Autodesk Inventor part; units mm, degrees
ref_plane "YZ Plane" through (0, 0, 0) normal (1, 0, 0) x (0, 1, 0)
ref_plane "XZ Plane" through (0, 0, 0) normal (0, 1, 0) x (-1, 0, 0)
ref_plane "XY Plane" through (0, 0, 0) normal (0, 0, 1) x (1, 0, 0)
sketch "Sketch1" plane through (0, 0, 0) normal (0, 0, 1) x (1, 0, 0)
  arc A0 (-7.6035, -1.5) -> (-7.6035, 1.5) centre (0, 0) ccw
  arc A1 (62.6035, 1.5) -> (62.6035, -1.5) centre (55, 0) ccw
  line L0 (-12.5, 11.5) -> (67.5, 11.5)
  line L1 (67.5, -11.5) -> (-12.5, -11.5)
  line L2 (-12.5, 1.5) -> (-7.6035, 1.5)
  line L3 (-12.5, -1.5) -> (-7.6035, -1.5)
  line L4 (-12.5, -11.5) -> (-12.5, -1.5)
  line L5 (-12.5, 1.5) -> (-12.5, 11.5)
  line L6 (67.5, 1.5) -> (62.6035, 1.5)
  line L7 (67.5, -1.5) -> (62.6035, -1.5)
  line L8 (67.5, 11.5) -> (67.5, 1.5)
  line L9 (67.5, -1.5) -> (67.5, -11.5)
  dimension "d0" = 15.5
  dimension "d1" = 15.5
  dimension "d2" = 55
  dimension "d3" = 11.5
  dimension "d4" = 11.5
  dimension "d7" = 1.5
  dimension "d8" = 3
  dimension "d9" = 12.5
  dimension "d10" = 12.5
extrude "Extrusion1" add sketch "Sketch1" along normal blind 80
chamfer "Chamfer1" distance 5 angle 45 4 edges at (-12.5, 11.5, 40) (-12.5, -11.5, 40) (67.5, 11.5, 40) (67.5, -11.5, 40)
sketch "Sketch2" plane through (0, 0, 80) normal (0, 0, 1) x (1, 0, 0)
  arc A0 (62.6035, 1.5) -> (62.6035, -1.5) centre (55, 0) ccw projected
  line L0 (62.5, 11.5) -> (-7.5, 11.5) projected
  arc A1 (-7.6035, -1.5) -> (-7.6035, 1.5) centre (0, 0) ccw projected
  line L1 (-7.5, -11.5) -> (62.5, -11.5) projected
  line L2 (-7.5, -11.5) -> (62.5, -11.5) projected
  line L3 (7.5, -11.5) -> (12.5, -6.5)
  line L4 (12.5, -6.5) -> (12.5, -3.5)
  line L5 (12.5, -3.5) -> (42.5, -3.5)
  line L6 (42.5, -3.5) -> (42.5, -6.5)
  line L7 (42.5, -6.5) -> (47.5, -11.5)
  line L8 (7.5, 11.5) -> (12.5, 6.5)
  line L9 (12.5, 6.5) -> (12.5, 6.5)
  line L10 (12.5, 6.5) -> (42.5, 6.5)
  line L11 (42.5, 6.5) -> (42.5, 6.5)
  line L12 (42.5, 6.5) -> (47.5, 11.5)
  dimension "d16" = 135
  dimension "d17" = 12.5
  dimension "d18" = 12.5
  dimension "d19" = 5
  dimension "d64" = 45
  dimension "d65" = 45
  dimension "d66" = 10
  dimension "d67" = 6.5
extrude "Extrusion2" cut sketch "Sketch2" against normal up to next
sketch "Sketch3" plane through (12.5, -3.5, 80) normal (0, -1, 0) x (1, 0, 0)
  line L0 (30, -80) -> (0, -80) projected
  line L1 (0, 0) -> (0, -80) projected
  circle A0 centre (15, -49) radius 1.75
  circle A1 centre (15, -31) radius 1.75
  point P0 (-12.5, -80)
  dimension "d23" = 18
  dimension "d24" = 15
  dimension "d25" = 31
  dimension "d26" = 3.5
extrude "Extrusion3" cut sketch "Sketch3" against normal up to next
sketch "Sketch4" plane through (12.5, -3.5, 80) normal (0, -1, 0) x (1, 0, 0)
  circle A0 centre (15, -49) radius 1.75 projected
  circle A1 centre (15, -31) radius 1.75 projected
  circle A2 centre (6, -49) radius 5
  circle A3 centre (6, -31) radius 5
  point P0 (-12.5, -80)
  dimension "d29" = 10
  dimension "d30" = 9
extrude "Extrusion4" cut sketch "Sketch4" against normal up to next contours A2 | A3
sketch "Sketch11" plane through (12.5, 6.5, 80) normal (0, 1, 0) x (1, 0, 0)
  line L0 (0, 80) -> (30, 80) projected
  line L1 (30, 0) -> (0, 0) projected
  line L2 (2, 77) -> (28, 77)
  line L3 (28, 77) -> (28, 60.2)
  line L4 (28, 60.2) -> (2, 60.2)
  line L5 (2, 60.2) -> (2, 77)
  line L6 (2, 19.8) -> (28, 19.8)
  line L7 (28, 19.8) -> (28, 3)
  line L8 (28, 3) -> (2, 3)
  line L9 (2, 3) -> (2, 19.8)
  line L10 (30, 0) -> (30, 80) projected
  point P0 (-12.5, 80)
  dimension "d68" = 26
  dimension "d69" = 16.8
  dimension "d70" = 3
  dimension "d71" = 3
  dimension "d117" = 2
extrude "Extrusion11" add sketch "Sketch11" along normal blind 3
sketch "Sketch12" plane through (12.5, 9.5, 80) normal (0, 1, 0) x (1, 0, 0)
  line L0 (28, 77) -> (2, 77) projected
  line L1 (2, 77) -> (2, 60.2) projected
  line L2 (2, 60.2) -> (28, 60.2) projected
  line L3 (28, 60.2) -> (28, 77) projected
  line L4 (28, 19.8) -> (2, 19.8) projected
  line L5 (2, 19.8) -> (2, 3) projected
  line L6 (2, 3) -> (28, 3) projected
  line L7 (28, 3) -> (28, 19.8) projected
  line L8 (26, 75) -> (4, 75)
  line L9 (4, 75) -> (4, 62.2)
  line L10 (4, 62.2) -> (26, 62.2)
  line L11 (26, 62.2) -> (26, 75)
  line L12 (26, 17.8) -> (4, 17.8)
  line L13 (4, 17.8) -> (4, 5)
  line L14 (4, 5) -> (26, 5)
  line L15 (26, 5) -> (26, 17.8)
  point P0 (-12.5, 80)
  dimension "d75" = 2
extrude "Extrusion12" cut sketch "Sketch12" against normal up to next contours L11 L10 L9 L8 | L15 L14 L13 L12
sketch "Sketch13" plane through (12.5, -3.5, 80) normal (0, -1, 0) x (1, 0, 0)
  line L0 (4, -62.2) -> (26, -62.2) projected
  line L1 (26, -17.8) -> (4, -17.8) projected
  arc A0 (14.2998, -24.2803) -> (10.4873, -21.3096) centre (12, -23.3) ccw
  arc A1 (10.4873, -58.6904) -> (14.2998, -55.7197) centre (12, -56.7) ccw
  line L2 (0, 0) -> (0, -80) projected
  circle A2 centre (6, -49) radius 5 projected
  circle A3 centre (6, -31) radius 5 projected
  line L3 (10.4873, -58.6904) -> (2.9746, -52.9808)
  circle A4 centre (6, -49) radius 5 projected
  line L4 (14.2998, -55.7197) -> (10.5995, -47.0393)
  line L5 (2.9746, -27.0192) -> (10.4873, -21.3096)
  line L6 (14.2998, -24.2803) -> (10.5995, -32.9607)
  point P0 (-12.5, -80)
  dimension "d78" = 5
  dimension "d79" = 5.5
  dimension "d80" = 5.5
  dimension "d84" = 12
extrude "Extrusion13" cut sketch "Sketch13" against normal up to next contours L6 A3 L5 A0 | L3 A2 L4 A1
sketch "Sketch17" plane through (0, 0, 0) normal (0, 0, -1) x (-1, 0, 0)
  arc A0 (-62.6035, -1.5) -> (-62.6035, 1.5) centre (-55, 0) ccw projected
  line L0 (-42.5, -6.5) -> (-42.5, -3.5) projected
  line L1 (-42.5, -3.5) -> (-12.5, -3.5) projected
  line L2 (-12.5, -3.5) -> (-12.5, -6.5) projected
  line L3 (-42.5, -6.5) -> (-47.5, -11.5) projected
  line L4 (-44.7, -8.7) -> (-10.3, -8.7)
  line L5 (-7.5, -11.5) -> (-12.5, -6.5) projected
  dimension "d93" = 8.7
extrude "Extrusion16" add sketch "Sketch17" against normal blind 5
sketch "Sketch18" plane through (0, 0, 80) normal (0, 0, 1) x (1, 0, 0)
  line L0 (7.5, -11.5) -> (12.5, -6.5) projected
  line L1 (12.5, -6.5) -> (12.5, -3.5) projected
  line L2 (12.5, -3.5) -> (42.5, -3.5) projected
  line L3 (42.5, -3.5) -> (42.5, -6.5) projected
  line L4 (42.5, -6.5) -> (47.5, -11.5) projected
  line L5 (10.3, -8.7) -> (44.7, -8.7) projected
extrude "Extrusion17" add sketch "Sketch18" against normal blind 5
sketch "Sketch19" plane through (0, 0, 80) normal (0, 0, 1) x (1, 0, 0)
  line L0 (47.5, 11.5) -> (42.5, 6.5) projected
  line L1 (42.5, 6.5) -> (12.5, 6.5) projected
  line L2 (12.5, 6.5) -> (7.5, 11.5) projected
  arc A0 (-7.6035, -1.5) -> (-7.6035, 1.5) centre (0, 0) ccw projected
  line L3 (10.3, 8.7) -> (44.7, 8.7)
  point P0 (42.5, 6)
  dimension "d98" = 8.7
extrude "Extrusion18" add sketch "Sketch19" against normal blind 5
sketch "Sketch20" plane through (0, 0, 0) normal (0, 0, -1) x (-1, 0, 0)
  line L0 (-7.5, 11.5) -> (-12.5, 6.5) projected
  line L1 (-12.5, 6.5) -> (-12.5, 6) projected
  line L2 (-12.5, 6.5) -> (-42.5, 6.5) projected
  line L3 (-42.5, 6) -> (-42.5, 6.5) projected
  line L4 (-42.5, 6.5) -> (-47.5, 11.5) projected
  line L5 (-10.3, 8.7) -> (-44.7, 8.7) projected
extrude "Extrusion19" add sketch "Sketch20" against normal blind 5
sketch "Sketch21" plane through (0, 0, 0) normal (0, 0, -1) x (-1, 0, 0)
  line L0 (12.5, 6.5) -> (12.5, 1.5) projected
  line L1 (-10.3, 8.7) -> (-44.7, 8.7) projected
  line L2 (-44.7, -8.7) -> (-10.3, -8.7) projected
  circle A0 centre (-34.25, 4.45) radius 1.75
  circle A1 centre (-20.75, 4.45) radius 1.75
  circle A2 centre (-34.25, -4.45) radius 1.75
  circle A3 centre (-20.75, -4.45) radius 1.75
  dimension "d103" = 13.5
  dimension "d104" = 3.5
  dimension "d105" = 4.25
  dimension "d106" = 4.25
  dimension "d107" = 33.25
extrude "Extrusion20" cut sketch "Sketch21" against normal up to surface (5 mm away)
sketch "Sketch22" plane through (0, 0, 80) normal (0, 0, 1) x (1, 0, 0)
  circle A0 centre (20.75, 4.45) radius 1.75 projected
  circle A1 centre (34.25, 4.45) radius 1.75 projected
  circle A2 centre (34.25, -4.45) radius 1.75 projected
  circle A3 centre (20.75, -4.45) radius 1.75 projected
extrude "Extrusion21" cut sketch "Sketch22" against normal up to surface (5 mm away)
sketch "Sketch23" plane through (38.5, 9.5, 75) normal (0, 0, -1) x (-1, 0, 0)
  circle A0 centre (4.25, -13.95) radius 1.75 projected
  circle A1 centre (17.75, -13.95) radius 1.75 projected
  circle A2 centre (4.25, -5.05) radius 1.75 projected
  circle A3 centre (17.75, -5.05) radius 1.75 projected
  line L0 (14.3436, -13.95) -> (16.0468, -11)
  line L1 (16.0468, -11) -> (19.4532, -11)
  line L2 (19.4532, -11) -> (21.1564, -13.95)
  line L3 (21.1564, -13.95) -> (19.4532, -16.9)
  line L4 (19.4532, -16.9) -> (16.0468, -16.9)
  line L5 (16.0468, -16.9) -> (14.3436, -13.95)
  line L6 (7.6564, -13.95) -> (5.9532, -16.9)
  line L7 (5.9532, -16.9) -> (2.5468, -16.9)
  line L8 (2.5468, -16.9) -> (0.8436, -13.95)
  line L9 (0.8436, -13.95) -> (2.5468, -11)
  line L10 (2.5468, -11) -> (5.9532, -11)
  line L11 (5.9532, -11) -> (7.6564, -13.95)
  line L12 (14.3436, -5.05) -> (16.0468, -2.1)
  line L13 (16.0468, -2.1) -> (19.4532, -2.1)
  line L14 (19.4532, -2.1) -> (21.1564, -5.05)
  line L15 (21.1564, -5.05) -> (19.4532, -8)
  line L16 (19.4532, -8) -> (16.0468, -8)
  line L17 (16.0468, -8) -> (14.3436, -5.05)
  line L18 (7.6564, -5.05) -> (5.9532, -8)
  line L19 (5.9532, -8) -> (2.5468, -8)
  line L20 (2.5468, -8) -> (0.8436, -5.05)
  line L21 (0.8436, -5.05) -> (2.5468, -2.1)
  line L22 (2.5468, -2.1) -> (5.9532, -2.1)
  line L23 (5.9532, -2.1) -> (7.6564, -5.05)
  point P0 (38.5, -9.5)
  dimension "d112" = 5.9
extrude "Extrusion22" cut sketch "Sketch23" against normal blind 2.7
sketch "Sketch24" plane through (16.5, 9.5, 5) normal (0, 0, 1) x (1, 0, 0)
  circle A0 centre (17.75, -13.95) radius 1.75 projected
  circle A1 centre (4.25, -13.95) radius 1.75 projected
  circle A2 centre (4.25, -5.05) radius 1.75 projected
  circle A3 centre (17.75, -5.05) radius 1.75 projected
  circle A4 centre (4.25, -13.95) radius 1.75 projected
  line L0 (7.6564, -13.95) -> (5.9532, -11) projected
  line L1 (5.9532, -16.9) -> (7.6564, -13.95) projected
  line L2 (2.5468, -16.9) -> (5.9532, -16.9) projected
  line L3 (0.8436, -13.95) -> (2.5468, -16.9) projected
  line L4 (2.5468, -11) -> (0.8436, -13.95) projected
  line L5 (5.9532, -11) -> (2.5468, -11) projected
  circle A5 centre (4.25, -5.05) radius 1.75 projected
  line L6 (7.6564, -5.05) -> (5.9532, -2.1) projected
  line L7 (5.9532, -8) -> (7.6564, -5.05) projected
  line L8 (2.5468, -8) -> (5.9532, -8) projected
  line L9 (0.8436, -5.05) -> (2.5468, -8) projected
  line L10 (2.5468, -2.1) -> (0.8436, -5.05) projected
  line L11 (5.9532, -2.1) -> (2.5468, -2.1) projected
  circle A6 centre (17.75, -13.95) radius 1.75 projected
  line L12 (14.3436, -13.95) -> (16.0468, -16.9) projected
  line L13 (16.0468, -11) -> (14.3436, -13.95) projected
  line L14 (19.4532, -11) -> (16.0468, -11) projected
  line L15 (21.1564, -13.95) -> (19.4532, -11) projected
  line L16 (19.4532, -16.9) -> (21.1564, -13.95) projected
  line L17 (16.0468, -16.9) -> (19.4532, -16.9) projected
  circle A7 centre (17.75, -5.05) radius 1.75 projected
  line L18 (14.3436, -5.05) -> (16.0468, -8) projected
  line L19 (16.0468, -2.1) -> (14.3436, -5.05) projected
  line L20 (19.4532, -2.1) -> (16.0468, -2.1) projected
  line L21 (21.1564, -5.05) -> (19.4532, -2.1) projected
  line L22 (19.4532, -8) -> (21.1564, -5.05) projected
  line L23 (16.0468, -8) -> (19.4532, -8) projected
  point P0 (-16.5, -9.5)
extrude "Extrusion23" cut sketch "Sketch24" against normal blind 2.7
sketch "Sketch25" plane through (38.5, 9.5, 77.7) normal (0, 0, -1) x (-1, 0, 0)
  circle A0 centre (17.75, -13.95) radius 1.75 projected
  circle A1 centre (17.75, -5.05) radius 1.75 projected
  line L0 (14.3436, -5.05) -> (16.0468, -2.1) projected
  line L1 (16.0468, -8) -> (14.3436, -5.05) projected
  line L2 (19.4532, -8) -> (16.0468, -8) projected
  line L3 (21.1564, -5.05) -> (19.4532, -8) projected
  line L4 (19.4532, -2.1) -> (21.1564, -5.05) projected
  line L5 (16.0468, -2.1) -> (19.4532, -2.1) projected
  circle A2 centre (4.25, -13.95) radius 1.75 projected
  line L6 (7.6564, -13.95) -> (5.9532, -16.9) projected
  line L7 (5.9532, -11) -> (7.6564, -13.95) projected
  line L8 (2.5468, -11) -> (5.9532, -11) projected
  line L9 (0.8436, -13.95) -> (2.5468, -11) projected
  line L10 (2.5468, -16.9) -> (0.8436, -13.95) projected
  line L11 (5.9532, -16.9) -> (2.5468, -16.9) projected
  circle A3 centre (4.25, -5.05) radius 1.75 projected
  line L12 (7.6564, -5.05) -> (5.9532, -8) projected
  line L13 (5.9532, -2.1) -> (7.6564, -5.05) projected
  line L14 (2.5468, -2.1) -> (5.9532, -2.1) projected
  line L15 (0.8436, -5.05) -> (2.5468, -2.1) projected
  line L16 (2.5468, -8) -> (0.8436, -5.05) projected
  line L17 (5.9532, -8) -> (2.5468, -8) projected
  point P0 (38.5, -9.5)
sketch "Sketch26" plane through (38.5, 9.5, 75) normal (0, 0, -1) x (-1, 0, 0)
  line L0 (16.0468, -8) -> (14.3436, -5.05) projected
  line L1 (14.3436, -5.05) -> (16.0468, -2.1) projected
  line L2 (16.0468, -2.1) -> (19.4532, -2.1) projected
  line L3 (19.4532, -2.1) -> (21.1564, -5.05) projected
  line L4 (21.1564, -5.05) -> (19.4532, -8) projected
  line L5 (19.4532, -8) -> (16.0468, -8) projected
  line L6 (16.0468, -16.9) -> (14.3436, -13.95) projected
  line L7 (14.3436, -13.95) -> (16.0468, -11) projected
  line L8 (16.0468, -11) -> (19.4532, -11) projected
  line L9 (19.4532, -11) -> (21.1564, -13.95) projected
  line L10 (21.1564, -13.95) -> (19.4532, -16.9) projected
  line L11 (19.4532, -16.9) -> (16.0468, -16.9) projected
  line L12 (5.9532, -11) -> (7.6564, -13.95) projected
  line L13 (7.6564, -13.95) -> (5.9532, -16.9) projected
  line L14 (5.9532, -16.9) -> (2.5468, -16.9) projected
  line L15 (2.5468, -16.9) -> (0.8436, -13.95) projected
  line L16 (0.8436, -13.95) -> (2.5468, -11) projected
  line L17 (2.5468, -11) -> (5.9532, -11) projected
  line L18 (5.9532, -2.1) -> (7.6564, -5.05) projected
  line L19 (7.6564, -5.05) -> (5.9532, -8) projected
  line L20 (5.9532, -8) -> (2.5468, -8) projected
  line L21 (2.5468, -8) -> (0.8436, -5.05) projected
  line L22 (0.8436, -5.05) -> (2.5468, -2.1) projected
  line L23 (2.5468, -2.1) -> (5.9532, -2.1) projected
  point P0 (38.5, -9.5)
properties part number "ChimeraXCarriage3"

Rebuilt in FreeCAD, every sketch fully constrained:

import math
import FreeCAD as App
import Part
import Sketcher
Q = App.Units.Quantity


def edges_at(feature, points):
    """Names of the edges that pass closest to the given points."""
    edges = feature.Shape.Edges
    near = lambda p: min(range(len(edges)), key=lambda i: edges[i].distToShape(Part.Vertex(*p))[0])
    return sorted({f"Edge{near(p) + 1}" for p in points})

doc = App.newDocument("Part")
params = doc.addObject("Spreadsheet::Sheet", "Params")
for row, (alias, value) in enumerate([
    ("sketch1_radius", "7.75 mm"),
    ("pad1_length", "80 mm"),
    ("chamfer_size", "5 mm"),
    ("sketch2_width", "40 mm"),
    ("sketch3_diameter", "3.5 mm"),
    ("sketch4_diameter", "10 mm"),
    ("sketch5_width", "26 mm"),
    ("sketch5_height", "16.8 mm"),
    ("pad2_length", "3 mm"),
    ("sketch6_width", "22 mm"),
    ("sketch6_height", "12.8 mm"),
    ("pocket4_length", "13 mm"),
    ("sketch7_radius", "5 mm"),
    ("sketch7_radius2", "2.5 mm"),
    ("sketch8_width", "30 mm"),
    ("sketch8_height", "3 mm"),
    ("sketch8_width2", "34.4 mm"),
    ("pad3_length", "5 mm"),
    ("sketch9_width", "30 mm"),
    ("sketch9_height", "3 mm"),
    ("sketch9_width2", "34.4 mm"),
    ("pad4_length", "5 mm"),
    ("sketch10_width", "30 mm"),
    ("sketch10_width2", "34.4 mm"),
    ("pad5_length", "5 mm"),
    ("sketch11_width", "30 mm"),
    ("sketch11_width2", "34.4 mm"),
    ("pad6_length", "5 mm"),
    ("sketch12_diameter", "3.5 mm"),
    ("pocket6_length", "5 mm"),
    ("sketch13_diameter", "3.5 mm"),
    ("pocket7_length", "5 mm"),
    ("sketch14_diameter", "3.5 mm"),
    ("pocket8_length", "2.7 mm"),
    ("sketch15_diameter", "3.5 mm"),
    ("pocket9_length", "2.7 mm"),
], start=1):
    params.set(f"A{row}", alias)
    params.set(f"B{row}", "=" + value)
    params.setAlias(f"B{row}", alias)

body = doc.addObject("PartDesign::Body", "Body")

# Sketch on XY plane
sketch1 = doc.addObject("Sketcher::SketchObject", "Sketch")
body.addObject(sketch1)
sketch1.AttachmentSupport = (doc.XY_Plane, [""])
sketch1.MapMode = "FlatFace"
sketch1.addGeometry([
    Part.ArcOfCircle(Part.Circle(App.Vector(0, 0, 0), App.Vector(0, 0, 1), 7.8), math.radians(-169), math.radians(169)),  # 0
    Part.LineSegment(App.Vector(-7.6, -1.5, 0), App.Vector(-12.5, -1.5, 0)),  # 1
    Part.LineSegment(App.Vector(-12.5, -1.5, 0), App.Vector(-12.5, -11.5, 0)),  # 2
    Part.LineSegment(App.Vector(-12.5, -11.5, 0), App.Vector(67.5, -11.5, 0)),  # 3
    Part.LineSegment(App.Vector(67.5, -11.5, 0), App.Vector(67.5, -1.5, 0)),  # 4
    Part.LineSegment(App.Vector(67.5, -1.5, 0), App.Vector(62.6, -1.5, 0)),  # 5
    Part.ArcOfCircle(Part.Circle(App.Vector(55, 0, 0), App.Vector(0, 0, 1), 7.8), math.radians(11), math.radians(349)),  # 6
    Part.LineSegment(App.Vector(62.6, 1.5, 0), App.Vector(67.5, 1.5, 0)),  # 7
    Part.LineSegment(App.Vector(67.5, 1.5, 0), App.Vector(67.5, 11.5, 0)),  # 8
    Part.LineSegment(App.Vector(67.5, 11.5, 0), App.Vector(-12.5, 11.5, 0)),  # 9
    Part.LineSegment(App.Vector(-12.5, 11.5, 0), App.Vector(-12.5, 1.5, 0)),  # 10
    Part.LineSegment(App.Vector(-12.5, 1.5, 0), App.Vector(-7.6, 1.5, 0)),  # 11
], False)
sketch1.addConstraint([
    Sketcher.Constraint("Coincident", 0, 1, 1, 1),
    Sketcher.Constraint("Coincident", 1, 2, 2, 1),
    Sketcher.Constraint("Coincident", 2, 2, 3, 1),
    Sketcher.Constraint("Coincident", 3, 2, 4, 1),
    Sketcher.Constraint("Coincident", 4, 2, 5, 1),
    Sketcher.Constraint("Coincident", 5, 2, 6, 2),
    Sketcher.Constraint("Coincident", 6, 1, 7, 1),
    Sketcher.Constraint("Coincident", 7, 2, 8, 1),
    Sketcher.Constraint("Coincident", 8, 2, 9, 1),
    Sketcher.Constraint("Coincident", 9, 2, 10, 1),
    Sketcher.Constraint("Coincident", 10, 2, 11, 1),
    Sketcher.Constraint("Coincident", 11, 2, 0, 2),
    Sketcher.Constraint("Horizontal", 1),
    Sketcher.Constraint("Vertical", 2),
    Sketcher.Constraint("Horizontal", 3),
    Sketcher.Constraint("Vertical", 4),
    Sketcher.Constraint("Horizontal", 5),
    Sketcher.Constraint("Horizontal", 7),
    Sketcher.Constraint("Vertical", 8),
    Sketcher.Constraint("Horizontal", 9),
    Sketcher.Constraint("Vertical", 10),
    Sketcher.Constraint("Horizontal", 11),
    Sketcher.Constraint("Coincident", 0, 3, -1, 1),
    Sketcher.Constraint("Equal", 0, 6),
    Sketcher.Constraint("Symmetric", 5, 2, 6, 1, -1),
    Sketcher.Constraint("Symmetric", 3, 2, 8, 2, -1),
    Sketcher.Constraint("Symmetric", 1, 2, 10, 2, -1),
    Sketcher.Constraint("Horizontal", 1, 2, 4, 2),
    Sketcher.Constraint("Equal", 1, 5),
    Sketcher.Constraint("Radius", 0, Q("7.75 mm")),
    Sketcher.Constraint("DistanceX", -1, 1, 6, 3, Q("55 mm")),
    Sketcher.Constraint("DistanceY", 5, 2, 6, 1, Q("3 mm")),
    Sketcher.Constraint("DistanceX", 1, 2, -1, 1, Q("12.5 mm")),
    Sketcher.Constraint("DistanceY", 2, 2, -1, 1, Q("11.5 mm")),
])
sketch1.setExpression("Constraints[29]", "Params.sketch1_radius")
pad1 = doc.addObject("PartDesign::Pad", "Pad")
body.addObject(pad1)
pad1.Profile = sketch1
pad1.setExpression("Length", "Params.pad1_length")
doc.recompute()

chamfer = doc.addObject("PartDesign::Chamfer", "Chamfer")
body.addObject(chamfer)
chamfer.Base = (pad1, edges_at(pad1, [
    (-12.5, 11.5, 40),
    (-12.5, -11.5, 40),
    (67.5, 11.5, 40),
    (67.5, -11.5, 40),
]))
chamfer.setExpression("Size", "Params.chamfer_size")

# Sketch on XY plane
sketch2 = doc.addObject("Sketcher::SketchObject", "Sketch001")
body.addObject(sketch2)
sketch2.AttachmentSupport = (doc.XY_Plane, [""])
sketch2.MapMode = "FlatFace"
sketch2.AttachmentOffset = App.Placement(App.Vector(0, 0, 80), App.Rotation())
sketch2.addGeometry([
    Part.LineSegment(App.Vector(42.5, 6.5, 0), App.Vector(47.5, 11.5, 0)),  # 0
    Part.LineSegment(App.Vector(47.5, 11.5, 0), App.Vector(7.5, 11.5, 0)),  # 1
    Part.LineSegment(App.Vector(7.5, 11.5, 0), App.Vector(12.5, 6.5, 0)),  # 2
    Part.LineSegment(App.Vector(12.5, 6.5, 0), App.Vector(42.5, 6.5, 0)),  # 3
    Part.LineSegment(App.Vector(12.5, -6.5, 0), App.Vector(7.5, -11.5, 0)),  # 4
    Part.LineSegment(App.Vector(7.5, -11.5, 0), App.Vector(47.5, -11.5, 0)),  # 5
    Part.LineSegment(App.Vector(47.5, -11.5, 0), App.Vector(42.5, -6.5, 0)),  # 6
    Part.LineSegment(App.Vector(42.5, -6.5, 0), App.Vector(42.5, -3.5, 0)),  # 7
    Part.LineSegment(App.Vector(42.5, -3.5, 0), App.Vector(12.5, -3.5, 0)),  # 8
    Part.LineSegment(App.Vector(12.5, -3.5, 0), App.Vector(12.5, -6.5, 0)),  # 9
], False)
sketch2.addConstraint([
    Sketcher.Constraint("Coincident", 0, 2, 1, 1),
    Sketcher.Constraint("Coincident", 1, 2, 2, 1),
    Sketcher.Constraint("Coincident", 2, 2, 3, 1),
    Sketcher.Constraint("Coincident", 3, 2, 0, 1),
    Sketcher.Constraint("Coincident", 4, 2, 5, 1),
    Sketcher.Constraint("Coincident", 5, 2, 6, 1),
    Sketcher.Constraint("Coincident", 6, 2, 7, 1),
    Sketcher.Constraint("Coincident", 7, 2, 8, 1),
    Sketcher.Constraint("Coincident", 8, 2, 9, 1),
    Sketcher.Constraint("Coincident", 9, 2, 4, 1),
    Sketcher.Constraint("Horizontal", 1),
    Sketcher.Constraint("Horizontal", 3),
    Sketcher.Constraint("Horizontal", 5),
    Sketcher.Constraint("Vertical", 7),
    Sketcher.Constraint("Horizontal", 8),
    Sketcher.Constraint("Vertical", 9),
    Sketcher.Constraint("Symmetric", 1, 2, 4, 2, -1),
    Sketcher.Constraint("Symmetric", 3, 2, 6, 2, -1),
    Sketcher.Constraint("Symmetric", 2, 2, 9, 2, -1),
    Sketcher.Constraint("Perpendicular", 0, 2),
    Sketcher.Constraint("Perpendicular", 2, 4),
    Sketcher.Constraint("Perpendicular", 4, 6),
    Sketcher.Constraint("DistanceX", 1, 2, 2, 2, Q("5 mm")),
    Sketcher.Constraint("DistanceY", 7, 2, 3, 2, Q("10 mm")),
    Sketcher.Constraint("DistanceX", -1, 1, 2, 2, Q("12.5 mm")),
    Sketcher.Constraint("DistanceY", -1, 1, 2, 2, Q("6.5 mm")),
    Sketcher.Constraint("DistanceX", 1, 2, 1, 1, Q("40 mm")),
])
sketch2.setExpression("Constraints[26]", "Params.sketch2_width")
pocket1 = doc.addObject("PartDesign::Pocket", "Pocket")
body.addObject(pocket1)
pocket1.Profile = sketch2
pocket1.Type = "UpToFirst"

# Sketch on XZ plane
sketch3 = doc.addObject("Sketcher::SketchObject", "Sketch002")
body.addObject(sketch3)
sketch3.AttachmentSupport = (doc.XZ_Plane, [""])
sketch3.MapMode = "FlatFace"
sketch3.AttachmentOffset = App.Placement(App.Vector(0, 0, 3.5), App.Rotation())
sketch3.addGeometry([
    Part.Circle(App.Vector(27.5, 31, 0), App.Vector(0, 0, 1), 1.8),
    Part.Circle(App.Vector(27.5, 49, 0), App.Vector(0, 0, 1), 1.8),
], False)
sketch3.addConstraint([
    Sketcher.Constraint("Equal", 0, 1),
    Sketcher.Constraint("Vertical", 0, 3, 1, 3),
    Sketcher.Constraint("Diameter", 0, Q("3.5 mm")),
    Sketcher.Constraint("DistanceY", -1, 1, 0, 3, Q("31 mm")),
    Sketcher.Constraint("DistanceY", 0, 3, 1, 3, Q("18 mm")),
    Sketcher.Constraint("DistanceX", -1, 1, 0, 3, Q("27.5 mm")),
])
sketch3.setExpression("Constraints[2]", "Params.sketch3_diameter")
pocket2 = doc.addObject("PartDesign::Pocket", "Pocket001")
body.addObject(pocket2)
pocket2.Profile = sketch3
pocket2.Type = "UpToFirst"

# Sketch on XZ plane
sketch4 = doc.addObject("Sketcher::SketchObject", "Sketch003")
body.addObject(sketch4)
sketch4.AttachmentSupport = (doc.XZ_Plane, [""])
sketch4.MapMode = "FlatFace"
sketch4.AttachmentOffset = App.Placement(App.Vector(0, 0, 3.5), App.Rotation())
sketch4.addGeometry([
    Part.Circle(App.Vector(18, 31, 0), App.Vector(0, 0, 1), 5),
    Part.Circle(App.Vector(18, 49, 0), App.Vector(0, 0, 1), 5),
], False)
sketch4.addConstraint([
    Sketcher.Constraint("Equal", 0, 1),
    Sketcher.Constraint("Vertical", 0, 3, 1, 3),
    Sketcher.Constraint("Diameter", 0, Q("10 mm")),
    Sketcher.Constraint("DistanceY", -1, 1, 0, 3, Q("31 mm")),
    Sketcher.Constraint("DistanceY", -1, 1, 1, 3, Q("49 mm")),
    Sketcher.Constraint("DistanceX", -1, 1, 0, 3, Q("18.5 mm")),
])
sketch4.setExpression("Constraints[2]", "Params.sketch4_diameter")
pocket3 = doc.addObject("PartDesign::Pocket", "Pocket002")
body.addObject(pocket3)
pocket3.Profile = sketch4
pocket3.Type = "UpToFirst"

# Sketch on XZ plane
sketch5 = doc.addObject("Sketcher::SketchObject", "Sketch004")
body.addObject(sketch5)
sketch5.AttachmentSupport = (doc.XZ_Plane, [""])
sketch5.MapMode = "FlatFace"
sketch5.AttachmentOffset = App.Placement(App.Vector(0, 0, -6.5), App.Rotation())
sketch5.addGeometry([
    Part.LineSegment(App.Vector(40, 3, 0), App.Vector(14, 3, 0)),  # 0
    Part.LineSegment(App.Vector(14, 3, 0), App.Vector(14, 20, 0)),  # 1
    Part.LineSegment(App.Vector(14, 20, 0), App.Vector(40, 20, 0)),  # 2
    Part.LineSegment(App.Vector(40, 20, 0), App.Vector(40, 3, 0)),  # 3
    Part.LineSegment(App.Vector(40, 60, 0), App.Vector(14, 60, 0)),  # 4
    Part.LineSegment(App.Vector(14, 60, 0), App.Vector(14, 77, 0)),  # 5
    Part.LineSegment(App.Vector(14, 77, 0), App.Vector(40, 77, 0)),  # 6
    Part.LineSegment(App.Vector(40, 77, 0), App.Vector(40, 60, 0)),  # 7
], False)
sketch5.addConstraint([
    Sketcher.Constraint("Coincident", 0, 2, 1, 1),
    Sketcher.Constraint("Coincident", 1, 2, 2, 1),
    Sketcher.Constraint("Coincident", 2, 2, 3, 1),
    Sketcher.Constraint("Coincident", 3, 2, 0, 1),
    Sketcher.Constraint("Coincident", 4, 2, 5, 1),
    Sketcher.Constraint("Coincident", 5, 2, 6, 1),
    Sketcher.Constraint("Coincident", 6, 2, 7, 1),
    Sketcher.Constraint("Coincident", 7, 2, 4, 1),
    Sketcher.Constraint("Horizontal", 0),
    Sketcher.Constraint("Vertical", 1),
    Sketcher.Constraint("Horizontal", 2),
    Sketcher.Constraint("Vertical", 3),
    Sketcher.Constraint("Horizontal", 4),
    Sketcher.Constraint("Vertical", 5),
    Sketcher.Constraint("Horizontal", 6),
    Sketcher.Constraint("Vertical", 7),
    Sketcher.Constraint("Vertical", 1, 2, 4, 2),
    Sketcher.Constraint("Vertical", 3, 2, 6, 2),
    Sketcher.Constraint("Equal", 3, 5),
    Sketcher.Constraint("DistanceX", 0, 2, 0, 1, Q("26 mm")),
    Sketcher.Constraint("DistanceY", 1, 1, 1, 2, Q("16.8 mm")),
    Sketcher.Constraint("DistanceY", -1, 1, 0, 2, Q("3 mm")),
    Sketcher.Constraint("DistanceY", -1, 1, 5, 2, Q("77 mm")),
    Sketcher.Constraint("DistanceX", -1, 1, 0, 2, Q("14.5 mm")),
])
sketch5.setExpression("Constraints[19]", "Params.sketch5_width")
sketch5.setExpression("Constraints[20]", "Params.sketch5_height")
pad2 = doc.addObject("PartDesign::Pad", "Pad001")
body.addObject(pad2)
pad2.Profile = sketch5
pad2.setExpression("Length", "Params.pad2_length")
pad2.Reversed = True

# Sketch on XZ plane
sketch6 = doc.addObject("Sketcher::SketchObject", "Sketch005")
body.addObject(sketch6)
sketch6.AttachmentSupport = (doc.XZ_Plane, [""])
sketch6.MapMode = "FlatFace"
sketch6.AttachmentOffset = App.Placement(App.Vector(0, 0, -9.5), App.Rotation())
sketch6.addGeometry([
    Part.LineSegment(App.Vector(38, 18, 0), App.Vector(38, 5, 0)),  # 0
    Part.LineSegment(App.Vector(38, 5, 0), App.Vector(16, 5, 0)),  # 1
    Part.LineSegment(App.Vector(16, 5, 0), App.Vector(16, 18, 0)),  # 2
    Part.LineSegment(App.Vector(16, 18, 0), App.Vector(38, 18, 0)),  # 3
    Part.LineSegment(App.Vector(38, 75, 0), App.Vector(38, 62, 0)),  # 4
    Part.LineSegment(App.Vector(38, 62, 0), App.Vector(16, 62, 0)),  # 5
    Part.LineSegment(App.Vector(16, 62, 0), App.Vector(16, 75, 0)),  # 6
    Part.LineSegment(App.Vector(16, 75, 0), App.Vector(38, 75, 0)),  # 7
], False)
sketch6.addConstraint([
    Sketcher.Constraint("Coincident", 0, 2, 1, 1),
    Sketcher.Constraint("Coincident", 1, 2, 2, 1),
    Sketcher.Constraint("Coincident", 2, 2, 3, 1),
    Sketcher.Constraint("Coincident", 3, 2, 0, 1),
    Sketcher.Constraint("Coincident", 4, 2, 5, 1),
    Sketcher.Constraint("Coincident", 5, 2, 6, 1),
    Sketcher.Constraint("Coincident", 6, 2, 7, 1),
    Sketcher.Constraint("Coincident", 7, 2, 4, 1),
    Sketcher.Constraint("Vertical", 0),
    Sketcher.Constraint("Horizontal", 1),
    Sketcher.Constraint("Vertical", 2),
    Sketcher.Constraint("Horizontal", 3),
    Sketcher.Constraint("Vertical", 4),
    Sketcher.Constraint("Horizontal", 5),
    Sketcher.Constraint("Vertical", 6),
    Sketcher.Constraint("Horizontal", 7),
    Sketcher.Constraint("Vertical", 3, 2, 4, 2),
    Sketcher.Constraint("Vertical", 2, 2, 5, 2),
    Sketcher.Constraint("Equal", 2, 4),
    Sketcher.Constraint("DistanceX", 1, 2, 1, 1, Q("22 mm")),
    Sketcher.Constraint("DistanceY", 0, 2, 0, 1, Q("12.8 mm")),
    Sketcher.Constraint("DistanceY", -1, 1, 0, 2, Q("5 mm")),
    Sketcher.Constraint("DistanceY", -1, 1, 6, 2, Q("75 mm")),
    Sketcher.Constraint("DistanceX", -1, 1, 0, 2, Q("38.5 mm")),
])
sketch6.setExpression("Constraints[19]", "Params.sketch6_width")
sketch6.setExpression("Constraints[20]", "Params.sketch6_height")
pocket4 = doc.addObject("PartDesign::Pocket", "Pocket003")
body.addObject(pocket4)
pocket4.Profile = sketch6
pocket4.setExpression("Length", "Params.pocket4_length")
pocket4.Reversed = True

# Sketch on XZ plane
sketch7 = doc.addObject("Sketcher::SketchObject", "Sketch006")
body.addObject(sketch7)
sketch7.AttachmentSupport = (doc.XZ_Plane, [""])
sketch7.MapMode = "FlatFace"
sketch7.AttachmentOffset = App.Placement(App.Vector(0, 0, 3.5), App.Rotation())
sketch7.addGeometry([
    Part.LineSegment(App.Vector(23.1, 47, 0), App.Vector(26.8, 55.7, 0)),  # 0
    Part.ArcOfCircle(Part.Circle(App.Vector(24.5, 56.7, 0), App.Vector(0, 0, 1), 2.5), math.radians(-23), math.radians(127)),  # 1
    Part.LineSegment(App.Vector(23, 58.7, 0), App.Vector(15.5, 53, 0)),  # 2
    Part.ArcOfCircle(Part.Circle(App.Vector(18.5, 49, 0), App.Vector(0, 0, 1), 5), math.radians(-23), math.radians(127)),  # 3
    Part.LineSegment(App.Vector(15.5, 27, 0), App.Vector(23, 21.3, 0)),  # 4
    Part.ArcOfCircle(Part.Circle(App.Vector(24.5, 23.3, 0), App.Vector(0, 0, 1), 2.5), math.radians(-127), math.radians(23)),  # 5
    Part.LineSegment(App.Vector(26.8, 24.3, 0), App.Vector(23.1, 33, 0)),  # 6
    Part.ArcOfCircle(Part.Circle(App.Vector(18.5, 31, 0), App.Vector(0, 0, 1), 5), math.radians(-127), math.radians(23)),  # 7
], False)
sketch7.addConstraint([
    Sketcher.Constraint("Tangent", 0, 2, 1, 1),
    Sketcher.Constraint("Tangent", 1, 2, 2, 1),
    Sketcher.Constraint("Tangent", 2, 2, 3, 2),
    Sketcher.Constraint("Tangent", 3, 1, 0, 1),
    Sketcher.Constraint("Tangent", 4, 2, 5, 1),
    Sketcher.Constraint("Tangent", 5, 2, 6, 1),
    Sketcher.Constraint("Tangent", 6, 2, 7, 2),
    Sketcher.Constraint("Tangent", 7, 1, 4, 1),
    Sketcher.Constraint("Equal", 1, 5),
    Sketcher.Constraint("Equal", 3, 7),
    Sketcher.Constraint("Vertical", 1, 3, 5, 3),
    Sketcher.Constraint("Vertical", 3, 3, 7, 3),
    Sketcher.Constraint("Vertical", 1, 2, 4, 2),
    Sketcher.Constraint("Radius", 3, Q("5 mm")),
    Sketcher.Constraint("Radius", 1, Q("2.5 mm")),
    Sketcher.Constraint("DistanceY", -1, 1, 3, 3, Q("49 mm")),
    Sketcher.Constraint("DistanceY", -1, 1, 7, 3, Q("31 mm")),
    Sketcher.Constraint("DistanceX", 3, 3, 1, 3, Q("6 mm")),
    Sketcher.Constraint("DistanceX", -1, 1, 1, 3, Q("24.5 mm")),
    Sketcher.Constraint("DistanceY", -1, 1, 1, 3, Q("56.7 mm")),
])
sketch7.setExpression("Constraints[13]", "Params.sketch7_radius")
sketch7.setExpression("Constraints[14]", "Params.sketch7_radius2")
pocket5 = doc.addObject("PartDesign::Pocket", "Pocket004")
body.addObject(pocket5)
pocket5.Profile = sketch7
pocket5.Type = "UpToFirst"

# Sketch on XY plane
sketch8 = doc.addObject("Sketcher::SketchObject", "Sketch007")
body.addObject(sketch8)
sketch8.AttachmentSupport = (doc.XY_Plane, [""])
sketch8.MapMode = "FlatFace"
sketch8.addGeometry([
    Part.LineSegment(App.Vector(42.5, -3.5, 0), App.Vector(42.5, -6.5, 0)),  # 0
    Part.LineSegment(App.Vector(42.5, -6.5, 0), App.Vector(44.7, -8.7, 0)),  # 1
    Part.LineSegment(App.Vector(44.7, -8.7, 0), App.Vector(10.3, -8.7, 0)),  # 2
    Part.LineSegment(App.Vector(10.3, -8.7, 0), App.Vector(12.5, -6.5, 0)),  # 3
    Part.LineSegment(App.Vector(12.5, -6.5, 0), App.Vector(12.5, -3.5, 0)),  # 4
    Part.LineSegment(App.Vector(12.5, -3.5, 0), App.Vector(42.5, -3.5, 0)),  # 5
], False)
sketch8.addConstraint([
    Sketcher.Constraint("Coincident", 0, 2, 1, 1),
    Sketcher.Constraint("Coincident", 1, 2, 2, 1),
    Sketcher.Constraint("Coincident", 2, 2, 3, 1),
    Sketcher.Constraint("Coincident", 3, 2, 4, 1),
    Sketcher.Constraint("Coincident", 4, 2, 5, 1),
    Sketcher.Constraint("Coincident", 5, 2, 0, 1),
    Sketcher.Constraint("Vertical", 0),
    Sketcher.Constraint("Horizontal", 2),
    Sketcher.Constraint("Vertical", 4),
    Sketcher.Constraint("Horizontal", 5),
    Sketcher.Constraint("Perpendicular", 1, 3),
    Sketcher.Constraint("Horizontal", 0, 2, 3, 2),
    Sketcher.Constraint("Equal", 1, 3),
    Sketcher.Constraint("DistanceY", 1, 2, -1, 1, Q("8.7 mm")),
    Sketcher.Constraint("DistanceX", 5, 1, 5, 2, Q("30 mm")),
    Sketcher.Constraint("DistanceY", 0, 2, 0, 1, Q("3 mm")),
    Sketcher.Constraint("DistanceX", 2, 2, 2, 1, Q("34.4 mm")),
    Sketcher.Constraint("DistanceX", -1, 1, 0, 2, Q("42.5 mm")),
])
sketch8.setExpression("Constraints[14]", "Params.sketch8_width")
sketch8.setExpression("Constraints[15]", "Params.sketch8_height")
sketch8.setExpression("Constraints[16]", "Params.sketch8_width2")
pad3 = doc.addObject("PartDesign::Pad", "Pad002")
body.addObject(pad3)
pad3.Profile = sketch8
pad3.setExpression("Length", "Params.pad3_length")

# Sketch on XY plane
sketch9 = doc.addObject("Sketcher::SketchObject", "Sketch008")
body.addObject(sketch9)
sketch9.AttachmentSupport = (doc.XY_Plane, [""])
sketch9.MapMode = "FlatFace"
sketch9.AttachmentOffset = App.Placement(App.Vector(0, 0, 80), App.Rotation())
sketch9.addGeometry([
    Part.LineSegment(App.Vector(12.5, -6.5, 0), App.Vector(10.3, -8.7, 0)),  # 0
    Part.LineSegment(App.Vector(10.3, -8.7, 0), App.Vector(44.7, -8.7, 0)),  # 1
    Part.LineSegment(App.Vector(44.7, -8.7, 0), App.Vector(42.5, -6.5, 0)),  # 2
    Part.LineSegment(App.Vector(42.5, -6.5, 0), App.Vector(42.5, -3.5, 0)),  # 3
    Part.LineSegment(App.Vector(42.5, -3.5, 0), App.Vector(12.5, -3.5, 0)),  # 4
    Part.LineSegment(App.Vector(12.5, -3.5, 0), App.Vector(12.5, -6.5, 0)),  # 5
], False)
sketch9.addConstraint([
    Sketcher.Constraint("Coincident", 0, 2, 1, 1),
    Sketcher.Constraint("Coincident", 1, 2, 2, 1),
    Sketcher.Constraint("Coincident", 2, 2, 3, 1),
    Sketcher.Constraint("Coincident", 3, 2, 4, 1),
    Sketcher.Constraint("Coincident", 4, 2, 5, 1),
    Sketcher.Constraint("Coincident", 5, 2, 0, 1),
    Sketcher.Constraint("Horizontal", 1),
    Sketcher.Constraint("Vertical", 3),
    Sketcher.Constraint("Horizontal", 4),
    Sketcher.Constraint("Vertical", 5),
    Sketcher.Constraint("Perpendicular", 0, 2),
    Sketcher.Constraint("Horizontal", 2, 2, 5, 2),
    Sketcher.Constraint("Equal", 0, 2),
    Sketcher.Constraint("DistanceX", 4, 2, 4, 1, Q("30 mm")),
    Sketcher.Constraint("DistanceY", 3, 1, 3, 2, Q("3 mm")),
    Sketcher.Constraint("DistanceX", 1, 1, 1, 2, Q("34.4 mm")),
    Sketcher.Constraint("DistanceX", -1, 1, 0, 2, Q("10.3 mm")),
    Sketcher.Constraint("DistanceY", 0, 2, -1, 1, Q("8.7 mm")),
])
sketch9.setExpression("Constraints[13]", "Params.sketch9_width")
sketch9.setExpression("Constraints[14]", "Params.sketch9_height")
sketch9.setExpression("Constraints[15]", "Params.sketch9_width2")
pad4 = doc.addObject("PartDesign::Pad", "Pad003")
body.addObject(pad4)
pad4.Profile = sketch9
pad4.setExpression("Length", "Params.pad4_length")
pad4.Reversed = True

# Sketch on XY plane
sketch10 = doc.addObject("Sketcher::SketchObject", "Sketch009")
body.addObject(sketch10)
sketch10.AttachmentSupport = (doc.XY_Plane, [""])
sketch10.MapMode = "FlatFace"
sketch10.AttachmentOffset = App.Placement(App.Vector(0, 0, 80), App.Rotation())
sketch10.addGeometry([
    Part.LineSegment(App.Vector(42.5, 6.5, 0), App.Vector(44.7, 8.7, 0)),
    Part.LineSegment(App.Vector(44.7, 8.7, 0), App.Vector(10.3, 8.7, 0)),
    Part.LineSegment(App.Vector(10.3, 8.7, 0), App.Vector(12.5, 6.5, 0)),
    Part.LineSegment(App.Vector(12.5, 6.5, 0), App.Vector(42.5, 6.5, 0)),
], False)
sketch10.addConstraint([
    Sketcher.Constraint("Coincident", 0, 2, 1, 1),
    Sketcher.Constraint("Coincident", 1, 2, 2, 1),
    Sketcher.Constraint("Coincident", 2, 2, 3, 1),
    Sketcher.Constraint("Coincident", 3, 2, 0, 1),
    Sketcher.Constraint("Horizontal", 1),
    Sketcher.Constraint("Horizontal", 3),
    Sketcher.Constraint("Perpendicular", 0, 2),
    Sketcher.Constraint("Equal", 0, 2),
    Sketcher.Constraint("DistanceY", -1, 1, 0, 2, Q("8.7 mm")),
    Sketcher.Constraint("DistanceX", 3, 1, 3, 2, Q("30 mm")),
    Sketcher.Constraint("DistanceX", 1, 2, 1, 1, Q("34.4 mm")),
    Sketcher.Constraint("DistanceX", -1, 1, 0, 2, Q("44.7 mm")),
])
sketch10.setExpression("Constraints[9]", "Params.sketch10_width")
sketch10.setExpression("Constraints[10]", "Params.sketch10_width2")
pad5 = doc.addObject("PartDesign::Pad", "Pad004")
body.addObject(pad5)
pad5.Profile = sketch10
pad5.setExpression("Length", "Params.pad5_length")
pad5.Reversed = True

# Sketch on XY plane
sketch11 = doc.addObject("Sketcher::SketchObject", "Sketch010")
body.addObject(sketch11)
sketch11.AttachmentSupport = (doc.XY_Plane, [""])
sketch11.MapMode = "FlatFace"
sketch11.addGeometry([
    Part.LineSegment(App.Vector(12.5, 6.5, 0), App.Vector(10.3, 8.7, 0)),
    Part.LineSegment(App.Vector(10.3, 8.7, 0), App.Vector(44.7, 8.7, 0)),
    Part.LineSegment(App.Vector(44.7, 8.7, 0), App.Vector(42.5, 6.5, 0)),
    Part.LineSegment(App.Vector(42.5, 6.5, 0), App.Vector(12.5, 6.5, 0)),
], False)
sketch11.addConstraint([
    Sketcher.Constraint("Coincident", 0, 2, 1, 1),
    Sketcher.Constraint("Coincident", 1, 2, 2, 1),
    Sketcher.Constraint("Coincident", 2, 2, 3, 1),
    Sketcher.Constraint("Coincident", 3, 2, 0, 1),
    Sketcher.Constraint("Horizontal", 1),
    Sketcher.Constraint("Horizontal", 3),
    Sketcher.Constraint("Perpendicular", 0, 2),
    Sketcher.Constraint("Equal", 0, 2),
    Sketcher.Constraint("DistanceX", 3, 2, 3, 1, Q("30 mm")),
    Sketcher.Constraint("DistanceX", 1, 1, 1, 2, Q("34.4 mm")),
    Sketcher.Constraint("DistanceX", -1, 1, 0, 2, Q("10.3 mm")),
    Sketcher.Constraint("DistanceY", -1, 1, 0, 2, Q("8.7 mm")),
])
sketch11.setExpression("Constraints[8]", "Params.sketch11_width")
sketch11.setExpression("Constraints[9]", "Params.sketch11_width2")
pad6 = doc.addObject("PartDesign::Pad", "Pad005")
body.addObject(pad6)
pad6.Profile = sketch11
pad6.setExpression("Length", "Params.pad6_length")

# Sketch on XY plane
sketch12 = doc.addObject("Sketcher::SketchObject", "Sketch011")
body.addObject(sketch12)
sketch12.AttachmentSupport = (doc.XY_Plane, [""])
sketch12.MapMode = "FlatFace"
sketch12.addGeometry([
    Part.Circle(App.Vector(34.2, 4.5, 0), App.Vector(0, 0, 1), 1.8),
    Part.Circle(App.Vector(20.8, 4.5, 0), App.Vector(0, 0, 1), 1.8),
    Part.Circle(App.Vector(34.2, -4.5, 0), App.Vector(0, 0, 1), 1.8),
    Part.Circle(App.Vector(20.8, -4.5, 0), App.Vector(0, 0, 1), 1.8),
], False)
sketch12.addConstraint([
    Sketcher.Constraint("Equal", 0, 1),
    Sketcher.Constraint("Equal", 1, 2),
    Sketcher.Constraint("Equal", 2, 3),
    Sketcher.Constraint("Symmetric", 0, 3, 2, 3, -1),
    Sketcher.Constraint("Symmetric", 1, 3, 3, 3, -1),
    Sketcher.Constraint("Horizontal", 0, 3, 1, 3),
    Sketcher.Constraint("Diameter", 0, Q("3.5 mm")),
    Sketcher.Constraint("DistanceX", 1, 3, 0, 3, Q("13.5 mm")),
    Sketcher.Constraint("DistanceY", 2, 3, 0, 3, Q("8.9 mm")),
    Sketcher.Constraint("DistanceX", -1, 1, 0, 3, Q("34.25 mm")),
])
sketch12.setExpression("Constraints[6]", "Params.sketch12_diameter")
pocket6 = doc.addObject("PartDesign::Pocket", "Pocket005")
body.addObject(pocket6)
pocket6.Profile = sketch12
pocket6.setExpression("Length", "Params.pocket6_length")
pocket6.Reversed = True

# Sketch on XY plane
sketch13 = doc.addObject("Sketcher::SketchObject", "Sketch012")
body.addObject(sketch13)
sketch13.AttachmentSupport = (doc.XY_Plane, [""])
sketch13.MapMode = "FlatFace"
sketch13.AttachmentOffset = App.Placement(App.Vector(0, 0, 80), App.Rotation())
sketch13.addGeometry([
    Part.Circle(App.Vector(20.8, 4.5, 0), App.Vector(0, 0, 1), 1.8),
    Part.Circle(App.Vector(34.2, 4.5, 0), App.Vector(0, 0, 1), 1.8),
    Part.Circle(App.Vector(34.2, -4.5, 0), App.Vector(0, 0, 1), 1.8),
    Part.Circle(App.Vector(20.8, -4.5, 0), App.Vector(0, 0, 1), 1.8),
], False)
sketch13.addConstraint([
    Sketcher.Constraint("Equal", 0, 1),
    Sketcher.Constraint("Equal", 1, 2),
    Sketcher.Constraint("Equal", 2, 3),
    Sketcher.Constraint("Symmetric", 1, 3, 2, 3, -1),
    Sketcher.Constraint("Symmetric", 0, 3, 3, 3, -1),
    Sketcher.Constraint("Horizontal", 0, 3, 1, 3),
    Sketcher.Constraint("Diameter", 0, Q("3.5 mm")),
    Sketcher.Constraint("DistanceX", 0, 3, 1, 3, Q("13.5 mm")),
    Sketcher.Constraint("DistanceY", 2, 3, 1, 3, Q("8.9 mm")),
    Sketcher.Constraint("DistanceX", -1, 1, 0, 3, Q("20.75 mm")),
])
sketch13.setExpression("Constraints[6]", "Params.sketch13_diameter")
pocket7 = doc.addObject("PartDesign::Pocket", "Pocket006")
body.addObject(pocket7)
pocket7.Profile = sketch13
pocket7.setExpression("Length", "Params.pocket7_length")

# Sketch on XY plane
sketch14 = doc.addObject("Sketcher::SketchObject", "Sketch013")
body.addObject(sketch14)
sketch14.AttachmentSupport = (doc.XY_Plane, [""])
sketch14.MapMode = "FlatFace"
sketch14.AttachmentOffset = App.Placement(App.Vector(0, 0, 75), App.Rotation())
sketch14.addGeometry([
    Part.LineSegment(App.Vector(22.5, -1.5, 0), App.Vector(24.2, -4.5, 0)),  # 0
    Part.LineSegment(App.Vector(24.2, -4.5, 0), App.Vector(22.5, -7.4, 0)),  # 1
    Part.LineSegment(App.Vector(22.5, -7.4, 0), App.Vector(19, -7.4, 0)),  # 2
    Part.LineSegment(App.Vector(19, -7.4, 0), App.Vector(17.3, -4.5, 0)),  # 3
    Part.LineSegment(App.Vector(17.3, -4.5, 0), App.Vector(19, -1.5, 0)),  # 4
    Part.LineSegment(App.Vector(19, -1.5, 0), App.Vector(22.5, -1.5, 0)),  # 5
    Part.Circle(App.Vector(20.8, -4.5, 0), App.Vector(0, 0, 1), 1.8),  # 6
    Part.LineSegment(App.Vector(32.5, -7.4, 0), App.Vector(30.8, -4.5, 0)),  # 7
    Part.LineSegment(App.Vector(30.8, -4.5, 0), App.Vector(32.5, -1.5, 0)),  # 8
    Part.LineSegment(App.Vector(32.5, -1.5, 0), App.Vector(36, -1.5, 0)),  # 9
    Part.LineSegment(App.Vector(36, -1.5, 0), App.Vector(37.7, -4.5, 0)),  # 10
    Part.LineSegment(App.Vector(37.7, -4.5, 0), App.Vector(36, -7.4, 0)),  # 11
    Part.LineSegment(App.Vector(36, -7.4, 0), App.Vector(32.5, -7.4, 0)),  # 12
    Part.Circle(App.Vector(34.2, -4.5, 0), App.Vector(0, 0, 1), 1.8),  # 13
    Part.LineSegment(App.Vector(22.5, 7.4, 0), App.Vector(24.2, 4.5, 0)),  # 14
    Part.LineSegment(App.Vector(24.2, 4.5, 0), App.Vector(22.5, 1.5, 0)),  # 15
    Part.LineSegment(App.Vector(22.5, 1.5, 0), App.Vector(19, 1.5, 0)),  # 16
    Part.LineSegment(App.Vector(19, 1.5, 0), App.Vector(17.3, 4.5, 0)),  # 17
    Part.LineSegment(App.Vector(17.3, 4.5, 0), App.Vector(19, 7.4, 0)),  # 18
    Part.LineSegment(App.Vector(19, 7.4, 0), App.Vector(22.5, 7.4, 0)),  # 19
    Part.Circle(App.Vector(20.8, 4.5, 0), App.Vector(0, 0, 1), 1.8),  # 20
    Part.LineSegment(App.Vector(32.5, 1.5, 0), App.Vector(30.8, 4.5, 0)),  # 21
    Part.LineSegment(App.Vector(30.8, 4.5, 0), App.Vector(32.5, 7.4, 0)),  # 22
    Part.LineSegment(App.Vector(32.5, 7.4, 0), App.Vector(36, 7.4, 0)),  # 23
    Part.LineSegment(App.Vector(36, 7.4, 0), App.Vector(37.7, 4.5, 0)),  # 24
    Part.LineSegment(App.Vector(37.7, 4.5, 0), App.Vector(36, 1.5, 0)),  # 25
    Part.LineSegment(App.Vector(36, 1.5, 0), App.Vector(32.5, 1.5, 0)),  # 26
    Part.Circle(App.Vector(34.2, 4.5, 0), App.Vector(0, 0, 1), 1.8),  # 27
], False)
sketch14.addConstraint([
    Sketcher.Constraint("Coincident", 0, 2, 1, 1),
    Sketcher.Constraint("Coincident", 1, 2, 2, 1),
    Sketcher.Constraint("Coincident", 2, 2, 3, 1),
    Sketcher.Constraint("Coincident", 3, 2, 4, 1),
    Sketcher.Constraint("Coincident", 4, 2, 5, 1),
    Sketcher.Constraint("Coincident", 5, 2, 0, 1),
    Sketcher.Constraint("Coincident", 7, 2, 8, 1),
    Sketcher.Constraint("Coincident", 8, 2, 9, 1),
    Sketcher.Constraint("Coincident", 9, 2, 10, 1),
    Sketcher.Constraint("Coincident", 10, 2, 11, 1),
    Sketcher.Constraint("Coincident", 11, 2, 12, 1),
    Sketcher.Constraint("Coincident", 12, 2, 7, 1),
    Sketcher.Constraint("Coincident", 14, 2, 15, 1),
    Sketcher.Constraint("Coincident", 15, 2, 16, 1),
    Sketcher.Constraint("Coincident", 16, 2, 17, 1),
    Sketcher.Constraint("Coincident", 17, 2, 18, 1),
    Sketcher.Constraint("Coincident", 18, 2, 19, 1),
    Sketcher.Constraint("Coincident", 19, 2, 14, 1),
    Sketcher.Constraint("Coincident", 21, 2, 22, 1),
    Sketcher.Constraint("Coincident", 22, 2, 23, 1),
    Sketcher.Constraint("Coincident", 23, 2, 24, 1),
    Sketcher.Constraint("Coincident", 24, 2, 25, 1),
    Sketcher.Constraint("Coincident", 25, 2, 26, 1),
    Sketcher.Constraint("Coincident", 26, 2, 21, 1),
    Sketcher.Constraint("Horizontal", 2),
    Sketcher.Constraint("Horizontal", 5),
    Sketcher.Constraint("Horizontal", 9),
    Sketcher.Constraint("Horizontal", 12),
    Sketcher.Constraint("Horizontal", 16),
    Sketcher.Constraint("Horizontal", 19),
    Sketcher.Constraint("Horizontal", 23),
    Sketcher.Constraint("Horizontal", 26),
    Sketcher.Constraint("Equal", 6, 13),
    Sketcher.Constraint("Equal", 13, 20),
    Sketcher.Constraint("Equal", 20, 27),
    Sketcher.Constraint("Symmetric", 6, 3, 20, 3, -1),
    Sketcher.Constraint("Symmetric", 13, 3, 27, 3, -1),
    Sketcher.Constraint("Symmetric", 0, 2, 14, 2, -1),
    Sketcher.Constraint("Symmetric", 5, 2, 15, 2, -1),
    Sketcher.Constraint("Symmetric", 3, 2, 17, 2, -1),
    Sketcher.Constraint("Symmetric", 2, 2, 18, 2, -1),
    Sketcher.Constraint("Symmetric", 7, 2, 21, 2, -1),
    Sketcher.Constraint("Symmetric", 12, 2, 22, 2, -1),
    Sketcher.Constraint("Symmetric", 10, 2, 24, 2, -1),
    Sketcher.Constraint("Symmetric", 9, 2, 25, 2, -1),
    Sketcher.Constraint("Parallel", 0, 3),
    Sketcher.Constraint("Parallel", 1, 4),
    Sketcher.Constraint("Parallel", 3, 7),
    Sketcher.Constraint("Parallel", 4, 8),
    Sketcher.Constraint("Parallel", 7, 10),
    Sketcher.Constraint("Parallel", 8, 11),
    Sketcher.Constraint("Parallel", 10, 14),
    Sketcher.Constraint("Parallel", 11, 15),
    Sketcher.Constraint("Parallel", 14, 17),
    Sketcher.Constraint("Parallel", 17, 21),
    Sketcher.Constraint("Parallel", 21, 24),
    Sketcher.Constraint("Horizontal", 6, 3, 13, 3),
    Sketcher.Constraint("Horizontal", 13, 3, 0, 2),
    Sketcher.Constraint("Horizontal", 0, 2, 3, 2),
    Sketcher.Constraint("Horizontal", 3, 2, 7, 2),
    Sketcher.Constraint("Horizontal", 5, 2, 8, 2),
    Sketcher.Constraint("Horizontal", 7, 2, 10, 2),
    Sketcher.Constraint("Horizontal", 2, 2, 11, 2),
    Sketcher.Constraint("Vertical", 2, 2, 4, 2),
    Sketcher.Constraint("Equal", 5, 9),
    Sketcher.Constraint("Diameter", 6, Q("3.5 mm")),
    Sketcher.Constraint("DistanceY", 2, 2, 4, 2, Q("5.9 mm")),
    Sketcher.Constraint("Angle", 0, Q("-59.9998 deg")),
    Sketcher.Constraint("DistanceY", 5, 2, 15, 2, Q("3 mm")),
    Sketcher.Constraint("DistanceX", 6, 3, 13, 3, Q("13.5 mm")),
    Sketcher.Constraint("DistanceX", -1, 1, 6, 3, Q("20.75 mm")),
    Sketcher.Constraint("DistanceX", 2, 2, 2, 1, Q("3.4064 mm")),
    Sketcher.Constraint("DistanceX", -1, 1, 0, 2, Q("24.1564 mm")),
    Sketcher.Constraint("DistanceX", -1, 1, 7, 2, Q("30.8436 mm")),
])
sketch14.setExpression("Constraints[65]", "Params.sketch14_diameter")
pocket8 = doc.addObject("PartDesign::Pocket", "Pocket007")
body.addObject(pocket8)
pocket8.Profile = sketch14
pocket8.setExpression("Length", "Params.pocket8_length")
pocket8.Reversed = True

# Sketch on XY plane
sketch15 = doc.addObject("Sketcher::SketchObject", "Sketch014")
body.addObject(sketch15)
sketch15.AttachmentSupport = (doc.XY_Plane, [""])
sketch15.MapMode = "FlatFace"
sketch15.AttachmentOffset = App.Placement(App.Vector(0, 0, 5), App.Rotation())
sketch15.addGeometry([
    Part.LineSegment(App.Vector(22.5, -7.4, 0), App.Vector(24.2, -4.5, 0)),  # 0
    Part.LineSegment(App.Vector(24.2, -4.5, 0), App.Vector(22.5, -1.5, 0)),  # 1
    Part.LineSegment(App.Vector(22.5, -1.5, 0), App.Vector(19, -1.5, 0)),  # 2
    Part.LineSegment(App.Vector(19, -1.5, 0), App.Vector(17.3, -4.5, 0)),  # 3
    Part.LineSegment(App.Vector(17.3, -4.5, 0), App.Vector(19, -7.4, 0)),  # 4
    Part.LineSegment(App.Vector(19, -7.4, 0), App.Vector(22.5, -7.4, 0)),  # 5
    Part.Circle(App.Vector(20.8, -4.5, 0), App.Vector(0, 0, 1), 1.8),  # 6
    Part.LineSegment(App.Vector(22.5, 1.5, 0), App.Vector(24.2, 4.5, 0)),  # 7
    Part.LineSegment(App.Vector(24.2, 4.5, 0), App.Vector(22.5, 7.4, 0)),  # 8
    Part.LineSegment(App.Vector(22.5, 7.4, 0), App.Vector(19, 7.4, 0)),  # 9
    Part.LineSegment(App.Vector(19, 7.4, 0), App.Vector(17.3, 4.5, 0)),  # 10
    Part.LineSegment(App.Vector(17.3, 4.5, 0), App.Vector(19, 1.5, 0)),  # 11
    Part.LineSegment(App.Vector(19, 1.5, 0), App.Vector(22.5, 1.5, 0)),  # 12
    Part.Circle(App.Vector(20.8, 4.5, 0), App.Vector(0, 0, 1), 1.8),  # 13
    Part.LineSegment(App.Vector(32.5, -1.5, 0), App.Vector(30.8, -4.5, 0)),  # 14
    Part.LineSegment(App.Vector(30.8, -4.5, 0), App.Vector(32.5, -7.4, 0)),  # 15
    Part.LineSegment(App.Vector(32.5, -7.4, 0), App.Vector(36, -7.4, 0)),  # 16
    Part.LineSegment(App.Vector(36, -7.4, 0), App.Vector(37.7, -4.5, 0)),  # 17
    Part.LineSegment(App.Vector(37.7, -4.5, 0), App.Vector(36, -1.5, 0)),  # 18
    Part.LineSegment(App.Vector(36, -1.5, 0), App.Vector(32.5, -1.5, 0)),  # 19
    Part.Circle(App.Vector(34.2, -4.5, 0), App.Vector(0, 0, 1), 1.8),  # 20
    Part.LineSegment(App.Vector(32.5, 7.4, 0), App.Vector(30.8, 4.5, 0)),  # 21
    Part.LineSegment(App.Vector(30.8, 4.5, 0), App.Vector(32.5, 1.5, 0)),  # 22
    Part.LineSegment(App.Vector(32.5, 1.5, 0), App.Vector(36, 1.5, 0)),  # 23
    Part.LineSegment(App.Vector(36, 1.5, 0), App.Vector(37.7, 4.5, 0)),  # 24
    Part.LineSegment(App.Vector(37.7, 4.5, 0), App.Vector(36, 7.4, 0)),  # 25
    Part.LineSegment(App.Vector(36, 7.4, 0), App.Vector(32.5, 7.4, 0)),  # 26
    Part.Circle(App.Vector(34.2, 4.5, 0), App.Vector(0, 0, 1), 1.8),  # 27
], False)
sketch15.addConstraint([
    Sketcher.Constraint("Coincident", 0, 2, 1, 1),
    Sketcher.Constraint("Coincident", 1, 2, 2, 1),
    Sketcher.Constraint("Coincident", 2, 2, 3, 1),
    Sketcher.Constraint("Coincident", 3, 2, 4, 1),
    Sketcher.Constraint("Coincident", 4, 2, 5, 1),
    Sketcher.Constraint("Coincident", 5, 2, 0, 1),
    Sketcher.Constraint("Coincident", 7, 2, 8, 1),
    Sketcher.Constraint("Coincident", 8, 2, 9, 1),
    Sketcher.Constraint("Coincident", 9, 2, 10, 1),
    Sketcher.Constraint("Coincident", 10, 2, 11, 1),
    Sketcher.Constraint("Coincident", 11, 2, 12, 1),
    Sketcher.Constraint("Coincident", 12, 2, 7, 1),
    Sketcher.Constraint("Coincident", 14, 2, 15, 1),
    Sketcher.Constraint("Coincident", 15, 2, 16, 1),
    Sketcher.Constraint("Coincident", 16, 2, 17, 1),
    Sketcher.Constraint("Coincident", 17, 2, 18, 1),
    Sketcher.Constraint("Coincident", 18, 2, 19, 1),
    Sketcher.Constraint("Coincident", 19, 2, 14, 1),
    Sketcher.Constraint("Coincident", 21, 2, 22, 1),
    Sketcher.Constraint("Coincident", 22, 2, 23, 1),
    Sketcher.Constraint("Coincident", 23, 2, 24, 1),
    Sketcher.Constraint("Coincident", 24, 2, 25, 1),
    Sketcher.Constraint("Coincident", 25, 2, 26, 1),
    Sketcher.Constraint("Coincident", 26, 2, 21, 1),
    Sketcher.Constraint("Horizontal", 2),
    Sketcher.Constraint("Horizontal", 5),
    Sketcher.Constraint("Horizontal", 9),
    Sketcher.Constraint("Horizontal", 12),
    Sketcher.Constraint("Horizontal", 16),
    Sketcher.Constraint("Horizontal", 19),
    Sketcher.Constraint("Horizontal", 23),
    Sketcher.Constraint("Horizontal", 26),
    Sketcher.Constraint("Equal", 6, 13),
    Sketcher.Constraint("Equal", 13, 20),
    Sketcher.Constraint("Equal", 20, 27),
    Sketcher.Constraint("Symmetric", 6, 3, 13, 3, -1),
    Sketcher.Constraint("Symmetric", 20, 3, 27, 3, -1),
    Sketcher.Constraint("Symmetric", 0, 2, 7, 2, -1),
    Sketcher.Constraint("Symmetric", 5, 2, 8, 2, -1),
    Sketcher.Constraint("Symmetric", 3, 2, 10, 2, -1),
    Sketcher.Constraint("Symmetric", 2, 2, 11, 2, -1),
    Sketcher.Constraint("Symmetric", 14, 2, 21, 2, -1),
    Sketcher.Constraint("Symmetric", 19, 2, 22, 2, -1),
    Sketcher.Constraint("Symmetric", 17, 2, 24, 2, -1),
    Sketcher.Constraint("Symmetric", 16, 2, 25, 2, -1),
    Sketcher.Constraint("Parallel", 0, 3),
    Sketcher.Constraint("Parallel", 1, 4),
    Sketcher.Constraint("Parallel", 3, 7),
    Sketcher.Constraint("Parallel", 4, 8),
    Sketcher.Constraint("Parallel", 7, 10),
    Sketcher.Constraint("Parallel", 10, 14),
    Sketcher.Constraint("Parallel", 11, 15),
    Sketcher.Constraint("Parallel", 14, 17),
    Sketcher.Constraint("Parallel", 15, 18),
    Sketcher.Constraint("Parallel", 17, 21),
    Sketcher.Constraint("Parallel", 21, 24),
    Sketcher.Constraint("Horizontal", 6, 3, 20, 3),
    Sketcher.Constraint("Horizontal", 20, 3, 0, 2),
    Sketcher.Constraint("Horizontal", 0, 2, 3, 2),
    Sketcher.Constraint("Horizontal", 3, 2, 14, 2),
    Sketcher.Constraint("Horizontal", 5, 2, 15, 2),
    Sketcher.Constraint("Horizontal", 14, 2, 17, 2),
    Sketcher.Constraint("Horizontal", 2, 2, 18, 2),
    Sketcher.Constraint("Vertical", 2, 2, 4, 2),
    Sketcher.Constraint("Equal", 12, 16),
    Sketcher.Constraint("Diameter", 6, Q("3.5 mm")),
    Sketcher.Constraint("Angle", 0, Q("59.9998 deg")),
    Sketcher.Constraint("DistanceY", 2, 2, 11, 2, Q("3 mm")),
    Sketcher.Constraint("DistanceY", 4, 2, -1, 1, Q("7.4 mm")),
    Sketcher.Constraint("DistanceX", 6, 3, 20, 3, Q("13.5 mm")),
    Sketcher.Constraint("DistanceX", -1, 1, 6, 3, Q("20.75 mm")),
    Sketcher.Constraint("DistanceX", 2, 2, 2, 1, Q("3.4064 mm")),
    Sketcher.Constraint("DistanceX", -1, 1, 0, 2, Q("24.1564 mm")),
    Sketcher.Constraint("DistanceX", -1, 1, 14, 2, Q("30.8436 mm")),
])
sketch15.setExpression("Constraints[65]", "Params.sketch15_diameter")
pocket9 = doc.addObject("PartDesign::Pocket", "Pocket008")
body.addObject(pocket9)
pocket9.Profile = sketch15
pocket9.setExpression("Length", "Params.pocket9_length")

doc.recompute()
